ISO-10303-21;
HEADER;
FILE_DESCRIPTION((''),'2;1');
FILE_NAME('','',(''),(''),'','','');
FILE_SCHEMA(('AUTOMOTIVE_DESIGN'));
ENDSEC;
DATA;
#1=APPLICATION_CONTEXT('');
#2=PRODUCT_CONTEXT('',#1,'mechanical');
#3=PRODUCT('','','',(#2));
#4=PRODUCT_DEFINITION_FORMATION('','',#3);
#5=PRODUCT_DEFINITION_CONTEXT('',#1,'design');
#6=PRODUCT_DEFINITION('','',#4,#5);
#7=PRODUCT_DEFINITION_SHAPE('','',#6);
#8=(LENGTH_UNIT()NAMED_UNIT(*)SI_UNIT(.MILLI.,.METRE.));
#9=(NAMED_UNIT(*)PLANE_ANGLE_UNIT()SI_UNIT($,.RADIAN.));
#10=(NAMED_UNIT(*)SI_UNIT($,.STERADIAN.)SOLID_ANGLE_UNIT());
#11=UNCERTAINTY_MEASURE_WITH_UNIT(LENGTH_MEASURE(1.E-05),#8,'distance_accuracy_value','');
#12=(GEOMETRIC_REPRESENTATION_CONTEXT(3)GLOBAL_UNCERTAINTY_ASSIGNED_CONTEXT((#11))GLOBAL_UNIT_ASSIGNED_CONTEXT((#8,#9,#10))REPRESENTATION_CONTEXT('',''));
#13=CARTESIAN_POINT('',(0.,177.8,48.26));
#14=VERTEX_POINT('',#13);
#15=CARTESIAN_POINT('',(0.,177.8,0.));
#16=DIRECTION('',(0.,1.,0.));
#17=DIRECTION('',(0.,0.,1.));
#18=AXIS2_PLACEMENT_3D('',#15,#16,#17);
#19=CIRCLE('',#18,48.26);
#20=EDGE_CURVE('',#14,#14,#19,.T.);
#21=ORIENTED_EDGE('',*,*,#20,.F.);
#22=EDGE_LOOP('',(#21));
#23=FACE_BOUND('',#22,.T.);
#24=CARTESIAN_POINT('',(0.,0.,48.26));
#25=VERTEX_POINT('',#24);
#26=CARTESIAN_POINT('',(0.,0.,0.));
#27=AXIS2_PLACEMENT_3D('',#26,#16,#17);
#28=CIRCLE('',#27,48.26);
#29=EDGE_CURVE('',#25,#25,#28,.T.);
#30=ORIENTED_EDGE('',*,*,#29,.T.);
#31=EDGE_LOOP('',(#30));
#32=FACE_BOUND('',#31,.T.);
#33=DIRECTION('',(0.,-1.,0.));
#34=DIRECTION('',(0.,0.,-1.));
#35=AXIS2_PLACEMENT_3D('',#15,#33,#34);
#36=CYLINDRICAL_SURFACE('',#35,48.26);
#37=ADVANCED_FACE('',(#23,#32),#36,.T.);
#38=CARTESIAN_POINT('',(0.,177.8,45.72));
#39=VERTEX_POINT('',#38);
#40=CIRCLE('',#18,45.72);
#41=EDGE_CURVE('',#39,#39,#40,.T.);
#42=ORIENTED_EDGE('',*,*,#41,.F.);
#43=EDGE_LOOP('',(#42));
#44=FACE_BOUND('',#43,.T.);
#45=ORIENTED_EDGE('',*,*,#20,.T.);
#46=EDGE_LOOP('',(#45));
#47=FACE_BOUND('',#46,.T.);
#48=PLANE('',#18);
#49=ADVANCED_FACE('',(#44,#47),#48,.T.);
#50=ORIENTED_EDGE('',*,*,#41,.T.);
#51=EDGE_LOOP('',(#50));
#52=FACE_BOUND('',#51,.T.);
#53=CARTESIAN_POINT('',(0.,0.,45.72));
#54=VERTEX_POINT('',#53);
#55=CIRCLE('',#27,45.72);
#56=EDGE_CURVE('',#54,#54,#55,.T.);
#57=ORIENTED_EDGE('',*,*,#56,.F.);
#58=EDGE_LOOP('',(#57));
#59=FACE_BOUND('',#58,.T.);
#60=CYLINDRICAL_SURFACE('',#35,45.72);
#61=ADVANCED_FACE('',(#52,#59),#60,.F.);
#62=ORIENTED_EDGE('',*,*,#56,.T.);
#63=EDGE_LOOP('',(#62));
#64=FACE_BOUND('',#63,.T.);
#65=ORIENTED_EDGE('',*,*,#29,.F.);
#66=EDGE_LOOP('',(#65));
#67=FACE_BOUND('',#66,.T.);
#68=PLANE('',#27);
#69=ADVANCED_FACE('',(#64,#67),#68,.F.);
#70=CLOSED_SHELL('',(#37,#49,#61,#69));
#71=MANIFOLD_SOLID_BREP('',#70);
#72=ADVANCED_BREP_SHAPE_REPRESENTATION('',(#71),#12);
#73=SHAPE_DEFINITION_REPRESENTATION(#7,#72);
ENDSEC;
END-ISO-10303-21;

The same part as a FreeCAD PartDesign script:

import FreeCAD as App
import Part
import Sketcher
Q = App.Units.Quantity

doc = App.newDocument("Part")
params = doc.addObject("Spreadsheet::Sheet", "Params")
for row, (alias, value) in enumerate([
    ("sketch1_diameter", "3.8 in"),
    ("sketch1_diameter2", "3.6 in"),
    ("pad1_length", "7 in"),
], start=1):
    params.set(f"A{row}", alias)
    params.set(f"B{row}", "=" + value)
    params.setAlias(f"B{row}", alias)

body = doc.addObject("PartDesign::Body", "Body")

# Sketch on XZ plane
sketch1 = body.newObject("Sketcher::SketchObject", "Sketch")
sketch1.AttachmentSupport = (doc.getObject("XZ_Plane"), [""])
sketch1.MapMode = "FlatFace"
sketch1.addGeometry(Part.Circle(App.Vector(0, 0, 0), App.Vector(0, 0, 1), 48), False)
sketch1.addGeometry(Part.Circle(App.Vector(0, 0, 0), App.Vector(0, 0, 1), 46), False)
sketch1.addConstraint(Sketcher.Constraint("Coincident", 0, 3, -1, 1))
sketch1.addConstraint(Sketcher.Constraint("Coincident", 1, 3, -1, 1))
sketch1.addConstraint(Sketcher.Constraint("Diameter", 0, Q("3.8 in")))
sketch1.addConstraint(Sketcher.Constraint("Diameter", 1, Q("3.6 in")))
sketch1.setExpression("Constraints[2]", "Params.sketch1_diameter")
sketch1.setExpression("Constraints[3]", "Params.sketch1_diameter2")
pad1 = body.newObject("PartDesign::Pad", "Pad")
pad1.Profile = sketch1
pad1.setExpression("Length", "Params.pad1_length")
pad1.Reversed = True

doc.recompute()
